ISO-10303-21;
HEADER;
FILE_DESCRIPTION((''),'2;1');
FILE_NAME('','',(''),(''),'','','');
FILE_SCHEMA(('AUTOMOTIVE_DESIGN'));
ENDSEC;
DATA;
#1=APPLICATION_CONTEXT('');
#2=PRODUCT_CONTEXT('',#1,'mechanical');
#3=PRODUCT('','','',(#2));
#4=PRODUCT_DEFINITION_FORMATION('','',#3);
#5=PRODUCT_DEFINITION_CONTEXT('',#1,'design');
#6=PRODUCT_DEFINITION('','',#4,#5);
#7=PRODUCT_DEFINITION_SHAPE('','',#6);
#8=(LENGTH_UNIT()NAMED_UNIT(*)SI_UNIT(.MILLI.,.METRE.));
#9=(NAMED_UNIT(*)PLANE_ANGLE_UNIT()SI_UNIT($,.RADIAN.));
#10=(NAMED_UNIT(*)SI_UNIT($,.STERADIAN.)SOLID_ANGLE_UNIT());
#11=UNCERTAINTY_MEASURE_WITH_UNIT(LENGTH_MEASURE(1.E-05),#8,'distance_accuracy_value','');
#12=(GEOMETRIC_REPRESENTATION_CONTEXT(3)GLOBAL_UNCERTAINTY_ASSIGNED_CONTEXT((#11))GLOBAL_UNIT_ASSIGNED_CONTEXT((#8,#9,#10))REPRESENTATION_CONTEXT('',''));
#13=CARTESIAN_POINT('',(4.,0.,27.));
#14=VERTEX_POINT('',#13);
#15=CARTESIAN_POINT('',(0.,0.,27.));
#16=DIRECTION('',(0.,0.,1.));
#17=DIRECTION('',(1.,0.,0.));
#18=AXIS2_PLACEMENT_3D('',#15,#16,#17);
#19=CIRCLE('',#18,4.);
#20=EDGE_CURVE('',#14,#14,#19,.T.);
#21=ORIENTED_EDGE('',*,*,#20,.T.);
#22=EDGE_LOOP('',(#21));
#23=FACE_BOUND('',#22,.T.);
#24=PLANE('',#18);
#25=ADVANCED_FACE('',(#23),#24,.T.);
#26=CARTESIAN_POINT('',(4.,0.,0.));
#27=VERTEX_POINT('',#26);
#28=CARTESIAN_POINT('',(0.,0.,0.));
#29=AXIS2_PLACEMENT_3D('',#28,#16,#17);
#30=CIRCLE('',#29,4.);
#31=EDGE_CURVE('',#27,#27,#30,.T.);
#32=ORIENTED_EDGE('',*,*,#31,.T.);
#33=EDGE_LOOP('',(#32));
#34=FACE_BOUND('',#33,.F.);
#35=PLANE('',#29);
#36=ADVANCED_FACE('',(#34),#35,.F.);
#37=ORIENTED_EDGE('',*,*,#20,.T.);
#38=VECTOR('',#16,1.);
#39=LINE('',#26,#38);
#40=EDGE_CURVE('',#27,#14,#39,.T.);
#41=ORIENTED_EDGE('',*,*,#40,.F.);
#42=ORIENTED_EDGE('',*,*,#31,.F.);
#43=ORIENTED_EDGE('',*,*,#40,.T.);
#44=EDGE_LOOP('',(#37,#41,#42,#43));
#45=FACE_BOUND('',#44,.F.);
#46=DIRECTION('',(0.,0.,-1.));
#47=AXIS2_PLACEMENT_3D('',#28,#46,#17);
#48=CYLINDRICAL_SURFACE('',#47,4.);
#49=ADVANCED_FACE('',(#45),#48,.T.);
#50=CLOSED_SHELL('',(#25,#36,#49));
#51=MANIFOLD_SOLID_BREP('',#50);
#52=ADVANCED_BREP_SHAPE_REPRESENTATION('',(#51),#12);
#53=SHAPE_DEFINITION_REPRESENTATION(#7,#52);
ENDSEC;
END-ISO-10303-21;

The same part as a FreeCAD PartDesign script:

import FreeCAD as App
import Part
import Sketcher

V = App.Vector

doc = App.newDocument("Part")
body = doc.addObject("PartDesign::Body", "Body")

# Sketch on XY plane
sketch1 = body.newObject("Sketcher::SketchObject", "Sketch")
sketch1.AttachmentSupport = (doc.getObject("XY_Plane"), [""])
sketch1.MapMode = "FlatFace"
sketch1.addGeometry(Part.Circle(V(0, 0, 0), V(0, 0, 1), 4), False)
sketch1.addConstraint(Sketcher.Constraint("Coincident", 0, 3, -1, 1))
sketch1.addConstraint(Sketcher.Constraint("Diameter", 0, 8.0))
pad1 = body.newObject("PartDesign::Pad", "Pad")
pad1.Profile = sketch1
pad1.Length = 27

doc.recompute()
